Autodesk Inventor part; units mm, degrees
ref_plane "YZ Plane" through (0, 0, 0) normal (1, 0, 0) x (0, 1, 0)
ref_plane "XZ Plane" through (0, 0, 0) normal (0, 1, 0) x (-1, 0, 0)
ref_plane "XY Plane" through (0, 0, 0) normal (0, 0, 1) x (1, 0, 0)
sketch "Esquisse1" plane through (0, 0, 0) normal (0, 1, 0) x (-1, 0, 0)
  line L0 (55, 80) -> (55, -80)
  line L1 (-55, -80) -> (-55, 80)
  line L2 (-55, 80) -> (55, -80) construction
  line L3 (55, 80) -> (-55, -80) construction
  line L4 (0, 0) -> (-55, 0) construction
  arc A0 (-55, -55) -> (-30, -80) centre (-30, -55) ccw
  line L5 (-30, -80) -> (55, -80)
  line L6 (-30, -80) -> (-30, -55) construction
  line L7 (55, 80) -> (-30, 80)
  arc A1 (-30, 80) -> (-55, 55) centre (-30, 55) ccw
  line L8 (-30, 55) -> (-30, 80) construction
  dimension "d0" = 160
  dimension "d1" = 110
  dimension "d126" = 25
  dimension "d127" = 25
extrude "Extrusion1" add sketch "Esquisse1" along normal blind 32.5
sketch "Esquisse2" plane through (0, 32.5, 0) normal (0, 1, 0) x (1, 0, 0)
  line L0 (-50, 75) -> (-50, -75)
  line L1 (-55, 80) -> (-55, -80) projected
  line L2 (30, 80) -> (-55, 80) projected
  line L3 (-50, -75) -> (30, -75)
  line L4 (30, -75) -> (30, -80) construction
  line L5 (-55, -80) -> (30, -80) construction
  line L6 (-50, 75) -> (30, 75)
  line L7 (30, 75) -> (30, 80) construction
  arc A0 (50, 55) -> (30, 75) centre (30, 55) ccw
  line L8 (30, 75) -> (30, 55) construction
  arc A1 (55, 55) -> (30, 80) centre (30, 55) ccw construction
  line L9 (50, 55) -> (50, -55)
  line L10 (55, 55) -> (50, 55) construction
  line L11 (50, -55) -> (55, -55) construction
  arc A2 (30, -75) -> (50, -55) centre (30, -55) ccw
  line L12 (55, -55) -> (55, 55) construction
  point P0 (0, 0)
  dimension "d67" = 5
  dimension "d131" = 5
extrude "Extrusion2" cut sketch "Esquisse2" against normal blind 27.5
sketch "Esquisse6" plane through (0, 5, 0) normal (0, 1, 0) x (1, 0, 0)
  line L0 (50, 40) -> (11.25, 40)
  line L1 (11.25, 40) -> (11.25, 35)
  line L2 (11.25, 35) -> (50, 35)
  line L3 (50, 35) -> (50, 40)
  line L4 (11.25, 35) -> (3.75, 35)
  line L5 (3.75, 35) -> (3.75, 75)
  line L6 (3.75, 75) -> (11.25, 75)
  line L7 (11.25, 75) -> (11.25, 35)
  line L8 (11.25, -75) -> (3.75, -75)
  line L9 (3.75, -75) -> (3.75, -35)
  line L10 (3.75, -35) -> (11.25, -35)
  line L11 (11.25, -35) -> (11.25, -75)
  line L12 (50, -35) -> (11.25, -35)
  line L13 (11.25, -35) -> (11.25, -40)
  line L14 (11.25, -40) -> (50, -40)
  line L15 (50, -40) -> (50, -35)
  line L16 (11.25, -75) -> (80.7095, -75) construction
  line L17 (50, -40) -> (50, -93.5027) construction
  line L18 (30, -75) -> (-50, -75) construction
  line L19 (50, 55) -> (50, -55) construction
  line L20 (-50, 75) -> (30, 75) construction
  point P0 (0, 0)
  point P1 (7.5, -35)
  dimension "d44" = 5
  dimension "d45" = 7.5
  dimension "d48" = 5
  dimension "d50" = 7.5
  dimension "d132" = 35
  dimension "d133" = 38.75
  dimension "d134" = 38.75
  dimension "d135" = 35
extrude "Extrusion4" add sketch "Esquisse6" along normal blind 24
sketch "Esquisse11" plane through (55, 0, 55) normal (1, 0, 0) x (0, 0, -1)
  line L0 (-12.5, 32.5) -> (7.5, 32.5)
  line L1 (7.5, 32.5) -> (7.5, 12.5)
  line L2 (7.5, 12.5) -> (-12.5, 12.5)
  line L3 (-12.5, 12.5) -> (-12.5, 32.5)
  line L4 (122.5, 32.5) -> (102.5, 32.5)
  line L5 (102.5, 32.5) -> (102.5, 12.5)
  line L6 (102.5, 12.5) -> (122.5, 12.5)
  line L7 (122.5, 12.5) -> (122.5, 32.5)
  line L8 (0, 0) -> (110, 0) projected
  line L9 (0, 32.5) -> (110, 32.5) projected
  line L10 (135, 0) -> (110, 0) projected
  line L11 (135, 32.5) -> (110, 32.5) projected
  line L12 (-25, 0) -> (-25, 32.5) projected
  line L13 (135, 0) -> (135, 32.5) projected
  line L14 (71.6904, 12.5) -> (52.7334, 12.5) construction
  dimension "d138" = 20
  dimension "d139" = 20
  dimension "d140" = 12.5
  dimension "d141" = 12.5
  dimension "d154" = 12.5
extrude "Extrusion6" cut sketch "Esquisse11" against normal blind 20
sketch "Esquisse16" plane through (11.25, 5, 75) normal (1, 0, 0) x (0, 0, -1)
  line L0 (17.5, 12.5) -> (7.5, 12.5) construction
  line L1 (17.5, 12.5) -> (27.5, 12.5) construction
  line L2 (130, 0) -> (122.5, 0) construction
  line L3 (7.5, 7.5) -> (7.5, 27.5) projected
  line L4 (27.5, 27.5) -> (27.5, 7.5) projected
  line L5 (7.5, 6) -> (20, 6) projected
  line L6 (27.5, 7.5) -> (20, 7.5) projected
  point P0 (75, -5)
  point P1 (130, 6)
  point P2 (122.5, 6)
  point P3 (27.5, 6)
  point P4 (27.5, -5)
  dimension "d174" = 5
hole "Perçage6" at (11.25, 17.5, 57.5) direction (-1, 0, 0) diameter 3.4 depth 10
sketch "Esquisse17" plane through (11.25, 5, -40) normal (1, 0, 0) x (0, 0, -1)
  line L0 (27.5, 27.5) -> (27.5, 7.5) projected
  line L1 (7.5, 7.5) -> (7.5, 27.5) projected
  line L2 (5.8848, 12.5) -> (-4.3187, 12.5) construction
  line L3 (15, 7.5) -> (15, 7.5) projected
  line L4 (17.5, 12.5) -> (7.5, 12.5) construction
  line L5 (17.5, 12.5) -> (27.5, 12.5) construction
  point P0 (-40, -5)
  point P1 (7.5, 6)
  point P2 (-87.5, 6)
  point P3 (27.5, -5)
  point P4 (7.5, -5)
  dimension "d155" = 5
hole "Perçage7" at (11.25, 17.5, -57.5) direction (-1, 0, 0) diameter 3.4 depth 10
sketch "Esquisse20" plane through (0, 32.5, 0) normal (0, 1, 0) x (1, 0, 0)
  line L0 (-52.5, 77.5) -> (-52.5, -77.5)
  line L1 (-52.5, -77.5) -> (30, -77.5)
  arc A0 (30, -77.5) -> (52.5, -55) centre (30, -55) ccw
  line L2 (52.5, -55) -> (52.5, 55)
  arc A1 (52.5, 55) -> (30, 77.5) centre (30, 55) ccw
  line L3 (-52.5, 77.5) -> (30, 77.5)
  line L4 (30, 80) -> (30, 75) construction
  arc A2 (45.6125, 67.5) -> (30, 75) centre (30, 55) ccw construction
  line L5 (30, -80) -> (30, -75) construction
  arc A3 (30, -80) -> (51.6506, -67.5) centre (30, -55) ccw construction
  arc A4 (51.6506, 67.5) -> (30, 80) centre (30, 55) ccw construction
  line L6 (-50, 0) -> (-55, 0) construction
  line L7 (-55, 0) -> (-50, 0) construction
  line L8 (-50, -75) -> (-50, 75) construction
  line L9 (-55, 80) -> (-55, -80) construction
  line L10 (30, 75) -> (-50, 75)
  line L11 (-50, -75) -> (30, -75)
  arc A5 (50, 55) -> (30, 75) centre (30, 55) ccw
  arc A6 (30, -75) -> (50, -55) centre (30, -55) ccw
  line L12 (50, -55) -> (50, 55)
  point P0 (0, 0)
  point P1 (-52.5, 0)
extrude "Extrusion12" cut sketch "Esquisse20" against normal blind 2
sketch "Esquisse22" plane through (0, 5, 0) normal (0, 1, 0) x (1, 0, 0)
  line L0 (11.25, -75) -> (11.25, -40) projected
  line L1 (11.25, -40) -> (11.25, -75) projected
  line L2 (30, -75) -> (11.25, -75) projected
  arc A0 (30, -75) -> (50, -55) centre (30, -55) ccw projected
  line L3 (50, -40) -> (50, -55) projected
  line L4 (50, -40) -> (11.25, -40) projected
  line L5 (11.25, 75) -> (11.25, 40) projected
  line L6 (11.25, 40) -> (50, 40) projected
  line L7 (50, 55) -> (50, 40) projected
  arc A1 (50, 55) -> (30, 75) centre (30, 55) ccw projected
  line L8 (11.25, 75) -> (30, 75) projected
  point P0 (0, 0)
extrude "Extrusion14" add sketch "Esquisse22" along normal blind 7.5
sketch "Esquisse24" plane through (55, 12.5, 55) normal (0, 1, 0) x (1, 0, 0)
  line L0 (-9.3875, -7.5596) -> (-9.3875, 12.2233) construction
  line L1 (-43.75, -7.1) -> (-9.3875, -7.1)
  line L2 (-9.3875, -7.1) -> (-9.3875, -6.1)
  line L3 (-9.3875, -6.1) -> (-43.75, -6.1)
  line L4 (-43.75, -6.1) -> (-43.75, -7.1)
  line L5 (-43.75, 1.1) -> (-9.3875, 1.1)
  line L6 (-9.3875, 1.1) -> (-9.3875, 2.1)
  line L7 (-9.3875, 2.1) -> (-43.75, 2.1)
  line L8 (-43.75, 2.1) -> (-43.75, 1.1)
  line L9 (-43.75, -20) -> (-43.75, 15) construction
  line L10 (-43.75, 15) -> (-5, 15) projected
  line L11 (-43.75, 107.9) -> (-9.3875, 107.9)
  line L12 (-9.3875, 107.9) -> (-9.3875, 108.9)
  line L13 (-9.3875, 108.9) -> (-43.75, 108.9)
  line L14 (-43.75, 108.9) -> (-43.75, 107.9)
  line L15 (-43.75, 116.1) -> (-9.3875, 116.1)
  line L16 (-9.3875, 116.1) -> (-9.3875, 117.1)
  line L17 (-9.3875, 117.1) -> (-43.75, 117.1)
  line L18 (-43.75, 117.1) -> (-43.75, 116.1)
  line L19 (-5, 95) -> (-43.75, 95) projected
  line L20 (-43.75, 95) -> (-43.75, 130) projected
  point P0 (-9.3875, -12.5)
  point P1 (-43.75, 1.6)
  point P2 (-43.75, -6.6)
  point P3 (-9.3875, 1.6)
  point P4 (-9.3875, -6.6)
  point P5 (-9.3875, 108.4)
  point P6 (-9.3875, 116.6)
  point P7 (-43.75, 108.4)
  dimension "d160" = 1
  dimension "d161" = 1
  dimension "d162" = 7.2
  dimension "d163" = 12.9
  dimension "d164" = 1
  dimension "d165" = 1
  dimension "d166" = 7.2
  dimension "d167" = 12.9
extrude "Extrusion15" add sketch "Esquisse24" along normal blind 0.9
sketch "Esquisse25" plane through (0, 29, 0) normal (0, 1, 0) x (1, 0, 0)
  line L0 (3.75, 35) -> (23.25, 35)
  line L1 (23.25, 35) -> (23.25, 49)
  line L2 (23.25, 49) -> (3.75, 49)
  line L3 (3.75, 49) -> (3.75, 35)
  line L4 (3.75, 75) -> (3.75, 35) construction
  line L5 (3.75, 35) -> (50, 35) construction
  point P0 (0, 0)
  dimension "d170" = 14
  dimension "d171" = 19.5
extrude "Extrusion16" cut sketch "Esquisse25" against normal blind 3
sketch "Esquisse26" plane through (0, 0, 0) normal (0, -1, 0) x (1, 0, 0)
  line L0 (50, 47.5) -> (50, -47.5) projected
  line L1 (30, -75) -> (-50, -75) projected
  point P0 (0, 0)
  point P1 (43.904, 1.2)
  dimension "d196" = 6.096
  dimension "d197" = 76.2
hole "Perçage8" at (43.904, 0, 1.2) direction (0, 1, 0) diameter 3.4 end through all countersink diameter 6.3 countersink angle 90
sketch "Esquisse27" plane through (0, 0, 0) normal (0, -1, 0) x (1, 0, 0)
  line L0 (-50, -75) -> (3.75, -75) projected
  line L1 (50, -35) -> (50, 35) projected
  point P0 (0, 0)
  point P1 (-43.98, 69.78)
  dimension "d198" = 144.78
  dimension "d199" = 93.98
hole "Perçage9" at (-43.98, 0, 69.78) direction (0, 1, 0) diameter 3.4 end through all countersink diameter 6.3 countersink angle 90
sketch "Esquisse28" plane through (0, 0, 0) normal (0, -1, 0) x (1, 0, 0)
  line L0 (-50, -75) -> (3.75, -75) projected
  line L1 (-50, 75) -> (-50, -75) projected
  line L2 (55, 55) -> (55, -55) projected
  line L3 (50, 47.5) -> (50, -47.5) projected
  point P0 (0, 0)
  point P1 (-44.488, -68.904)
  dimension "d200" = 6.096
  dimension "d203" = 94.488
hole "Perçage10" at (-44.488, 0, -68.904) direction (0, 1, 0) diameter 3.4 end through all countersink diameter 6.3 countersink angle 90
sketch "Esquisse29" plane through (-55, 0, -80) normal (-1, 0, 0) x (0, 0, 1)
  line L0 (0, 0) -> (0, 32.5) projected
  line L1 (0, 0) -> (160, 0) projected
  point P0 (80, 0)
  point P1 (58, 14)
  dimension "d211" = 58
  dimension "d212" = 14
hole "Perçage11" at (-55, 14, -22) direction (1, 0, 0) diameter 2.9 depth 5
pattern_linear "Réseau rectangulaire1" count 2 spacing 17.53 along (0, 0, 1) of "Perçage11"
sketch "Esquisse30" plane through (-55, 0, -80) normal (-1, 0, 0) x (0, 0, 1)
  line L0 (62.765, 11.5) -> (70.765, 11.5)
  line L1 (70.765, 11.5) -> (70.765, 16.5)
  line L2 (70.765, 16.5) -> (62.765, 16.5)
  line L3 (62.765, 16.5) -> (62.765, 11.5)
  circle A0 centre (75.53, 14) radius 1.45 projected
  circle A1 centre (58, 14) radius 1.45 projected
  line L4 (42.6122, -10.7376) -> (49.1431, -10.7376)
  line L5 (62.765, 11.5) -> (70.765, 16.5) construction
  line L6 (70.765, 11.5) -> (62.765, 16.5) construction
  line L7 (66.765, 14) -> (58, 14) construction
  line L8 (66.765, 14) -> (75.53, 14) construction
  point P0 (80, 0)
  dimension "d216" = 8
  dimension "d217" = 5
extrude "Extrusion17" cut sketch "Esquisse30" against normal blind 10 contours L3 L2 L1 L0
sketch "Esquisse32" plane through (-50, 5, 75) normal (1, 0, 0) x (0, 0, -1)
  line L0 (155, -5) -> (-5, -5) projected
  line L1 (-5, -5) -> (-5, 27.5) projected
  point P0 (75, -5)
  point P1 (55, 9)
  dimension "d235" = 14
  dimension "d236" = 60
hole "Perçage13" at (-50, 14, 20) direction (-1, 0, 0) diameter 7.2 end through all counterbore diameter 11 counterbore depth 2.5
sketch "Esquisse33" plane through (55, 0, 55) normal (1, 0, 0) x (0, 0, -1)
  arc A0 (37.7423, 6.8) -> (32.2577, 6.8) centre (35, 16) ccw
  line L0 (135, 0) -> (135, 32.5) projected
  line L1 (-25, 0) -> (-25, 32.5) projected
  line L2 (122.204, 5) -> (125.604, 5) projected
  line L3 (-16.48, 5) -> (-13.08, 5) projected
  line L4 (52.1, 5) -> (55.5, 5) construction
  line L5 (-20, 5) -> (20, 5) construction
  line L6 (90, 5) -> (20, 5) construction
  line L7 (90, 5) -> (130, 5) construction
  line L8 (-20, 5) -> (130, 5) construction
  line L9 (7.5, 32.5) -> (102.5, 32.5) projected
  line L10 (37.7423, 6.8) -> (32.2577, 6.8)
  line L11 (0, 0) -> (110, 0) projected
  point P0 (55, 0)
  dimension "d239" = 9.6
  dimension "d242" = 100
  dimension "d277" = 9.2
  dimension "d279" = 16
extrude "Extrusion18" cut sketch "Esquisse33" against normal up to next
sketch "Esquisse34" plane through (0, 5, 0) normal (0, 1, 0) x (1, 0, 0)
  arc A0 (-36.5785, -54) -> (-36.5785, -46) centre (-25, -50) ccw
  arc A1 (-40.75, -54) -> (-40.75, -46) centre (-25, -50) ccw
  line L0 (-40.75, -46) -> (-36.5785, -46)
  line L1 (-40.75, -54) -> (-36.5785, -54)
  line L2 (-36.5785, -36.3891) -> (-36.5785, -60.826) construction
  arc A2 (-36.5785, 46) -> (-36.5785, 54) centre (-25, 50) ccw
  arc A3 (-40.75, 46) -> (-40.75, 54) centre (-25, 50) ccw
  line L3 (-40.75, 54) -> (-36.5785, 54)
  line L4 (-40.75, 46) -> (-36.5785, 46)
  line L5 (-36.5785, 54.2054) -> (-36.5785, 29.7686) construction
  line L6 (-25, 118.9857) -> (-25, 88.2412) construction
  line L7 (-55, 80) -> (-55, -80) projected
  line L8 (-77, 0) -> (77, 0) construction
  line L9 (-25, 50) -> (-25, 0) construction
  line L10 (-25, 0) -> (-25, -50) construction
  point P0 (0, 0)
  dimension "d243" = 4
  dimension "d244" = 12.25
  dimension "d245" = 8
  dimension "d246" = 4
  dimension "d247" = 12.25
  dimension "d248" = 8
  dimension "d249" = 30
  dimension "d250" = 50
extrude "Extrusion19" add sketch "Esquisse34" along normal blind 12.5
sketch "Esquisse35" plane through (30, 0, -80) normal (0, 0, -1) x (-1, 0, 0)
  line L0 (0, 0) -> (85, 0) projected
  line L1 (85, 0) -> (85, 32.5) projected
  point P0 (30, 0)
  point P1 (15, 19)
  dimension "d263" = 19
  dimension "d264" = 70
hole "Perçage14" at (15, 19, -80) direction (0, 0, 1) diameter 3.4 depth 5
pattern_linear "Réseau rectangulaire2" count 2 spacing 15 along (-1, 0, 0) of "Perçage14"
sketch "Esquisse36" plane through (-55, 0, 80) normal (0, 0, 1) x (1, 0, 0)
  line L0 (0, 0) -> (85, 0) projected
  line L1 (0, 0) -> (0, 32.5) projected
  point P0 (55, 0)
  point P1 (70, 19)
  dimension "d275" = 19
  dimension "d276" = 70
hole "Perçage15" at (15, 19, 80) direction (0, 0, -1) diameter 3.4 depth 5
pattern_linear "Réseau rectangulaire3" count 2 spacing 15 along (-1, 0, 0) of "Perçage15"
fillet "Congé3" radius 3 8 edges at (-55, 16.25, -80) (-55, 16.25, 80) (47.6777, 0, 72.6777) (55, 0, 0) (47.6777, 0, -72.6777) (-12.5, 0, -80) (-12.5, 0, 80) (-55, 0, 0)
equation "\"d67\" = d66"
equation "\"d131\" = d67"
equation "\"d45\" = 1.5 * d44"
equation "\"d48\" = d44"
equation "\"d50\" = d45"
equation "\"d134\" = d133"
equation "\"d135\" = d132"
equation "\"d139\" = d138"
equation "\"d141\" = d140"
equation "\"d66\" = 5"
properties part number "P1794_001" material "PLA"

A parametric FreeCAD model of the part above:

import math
import FreeCAD as App
import Part
import Sketcher

V = App.Vector
Q = App.Units.Quantity


def edges_at(feature, points):
    """Names of the edges that pass closest to the given points."""
    edges = feature.Shape.Edges
    near = lambda p: min(range(len(edges)), key=lambda i: edges[i].distToShape(Part.Vertex(*p))[0])
    return sorted({f"Edge{near(p) + 1}" for p in points})

doc = App.newDocument("Part")
body = doc.addObject("PartDesign::Body", "Body")

sketch1 = body.newObject("Sketcher::SketchObject", "Sketch")
sketch1.AttachmentSupport = (doc.getObject("XZ_Plane"), [""])
sketch1.MapMode = "FlatFace"
sketch1.addGeometry([
    Part.LineSegment(V(-55, -80, 0), V(-55, 80, 0)),
    Part.LineSegment(V(-55, 80, 0), V(30, 80, 0)),
    Part.ArcOfCircle(Part.Circle(V(30, 55, 0), V(0, 0, 1), 25), math.radians(0), math.radians(90)),
    Part.LineSegment(V(55, 55, 0), V(55, -55, 0)),
    Part.ArcOfCircle(Part.Circle(V(30, -55, 0), V(0, 0, 1), 25), math.radians(-90), math.radians(0)),
    Part.LineSegment(V(30, -80, 0), V(-55, -80, 0)),
], False)
sketch1.addConstraint([
    Sketcher.Constraint("Coincident", 0, 2, 1, 1),
    Sketcher.Constraint("Tangent", 1, 2, 2, 2),
    Sketcher.Constraint("Tangent", 2, 1, 3, 1),
    Sketcher.Constraint("Tangent", 3, 2, 4, 2),
    Sketcher.Constraint("Tangent", 4, 1, 5, 1),
    Sketcher.Constraint("Coincident", 5, 2, 0, 1),
    Sketcher.Constraint("Vertical", 0),
    Sketcher.Constraint("Horizontal", 1),
    Sketcher.Constraint("Vertical", 3),
    Sketcher.Constraint("Horizontal", 5),
    Sketcher.Constraint("Equal", 2, 4),
    Sketcher.Constraint("Radius", 2, Q("25 mm")),
    Sketcher.Constraint("DistanceY", 0, 1, 0, 2, Q("160 mm")),
    Sketcher.Constraint("DistanceX", 0, 2, 2, 1, Q("110 mm")),
    Sketcher.Constraint("DistanceX", -1, 1, 2, 3, Q("30 mm")),
    Sketcher.Constraint("DistanceY", -1, 1, 2, 3, Q("55 mm")),
])
pad1 = body.newObject("PartDesign::Pad", "Pad")
pad1.Profile = sketch1
pad1.Length = 32.5
pad1.Reversed = True

sketch2 = body.newObject("Sketcher::SketchObject", "Sketch001")
sketch2.AttachmentSupport = (doc.getObject("XZ_Plane"), [""])
sketch2.MapMode = "FlatFace"
sketch2.AttachmentOffset = App.Placement(V(0, 0, -32.5), App.Rotation())
sketch2.addGeometry([
    Part.LineSegment(V(30, -75, 0), V(-50, -75, 0)),
    Part.LineSegment(V(-50, -75, 0), V(-50, 75, 0)),
    Part.LineSegment(V(-50, 75, 0), V(30, 75, 0)),
    Part.ArcOfCircle(Part.Circle(V(30, 55, 0), V(0, 0, 1), 20), math.radians(0), math.radians(90)),
    Part.LineSegment(V(50, 55, 0), V(50, -55, 0)),
    Part.ArcOfCircle(Part.Circle(V(30, -55, 0), V(0, 0, 1), 20), math.radians(-90), math.radians(0)),
], False)
sketch2.addConstraint([
    Sketcher.Constraint("Coincident", 0, 2, 1, 1),
    Sketcher.Constraint("Coincident", 1, 2, 2, 1),
    Sketcher.Constraint("Tangent", 2, 2, 3, 2),
    Sketcher.Constraint("Tangent", 3, 1, 4, 1),
    Sketcher.Constraint("Tangent", 4, 2, 5, 2),
    Sketcher.Constraint("Tangent", 5, 1, 0, 1),
    Sketcher.Constraint("Horizontal", 0),
    Sketcher.Constraint("Vertical", 1),
    Sketcher.Constraint("Horizontal", 2),
    Sketcher.Constraint("Vertical", 4),
    Sketcher.Constraint("Equal", 3, 5),
    Sketcher.Constraint("Radius", 3, Q("20 mm")),
    Sketcher.Constraint("DistanceX", 0, 2, 0, 1, Q("80 mm")),
    Sketcher.Constraint("DistanceY", 1, 1, 1, 2, Q("150 mm")),
    Sketcher.Constraint("DistanceX", -1, 1, 3, 3, Q("30 mm")),
    Sketcher.Constraint("DistanceY", -1, 1, 3, 3, Q("55 mm")),
])
pocket1 = body.newObject("PartDesign::Pocket", "Pocket")
pocket1.Profile = sketch2
pocket1.Length = 27.5
pocket1.Reversed = True

sketch3 = body.newObject("Sketcher::SketchObject", "Sketch002")
sketch3.AttachmentSupport = (doc.getObject("XZ_Plane"), [""])
sketch3.MapMode = "FlatFace"
sketch3.AttachmentOffset = App.Placement(V(0, 0, -5), App.Rotation())
sketch3.addGeometry([
    Part.LineSegment(V(50, -35, 0), V(50, -40, 0)),
    Part.LineSegment(V(50, -40, 0), V(11, -40, 0)),
    Part.LineSegment(V(11, -40, 0), V(11, -75, 0)),
    Part.LineSegment(V(11, -75, 0), V(4, -75, 0)),
    Part.LineSegment(V(4, -75, 0), V(4, -35, 0)),
    Part.LineSegment(V(4, -35, 0), V(50, -35, 0)),
    Part.LineSegment(V(4, 75, 0), V(11, 75, 0)),
    Part.LineSegment(V(11, 75, 0), V(11, 40, 0)),
    Part.LineSegment(V(11, 40, 0), V(50, 40, 0)),
    Part.LineSegment(V(50, 40, 0), V(50, 35, 0)),
    Part.LineSegment(V(50, 35, 0), V(4, 35, 0)),
    Part.LineSegment(V(4, 35, 0), V(4, 75, 0)),
], False)
sketch3.addConstraint([
    Sketcher.Constraint("Coincident", 0, 2, 1, 1),
    Sketcher.Constraint("Coincident", 1, 2, 2, 1),
    Sketcher.Constraint("Coincident", 2, 2, 3, 1),
    Sketcher.Constraint("Coincident", 3, 2, 4, 1),
    Sketcher.Constraint("Coincident", 4, 2, 5, 1),
    Sketcher.Constraint("Coincident", 5, 2, 0, 1),
    Sketcher.Constraint("Coincident", 6, 2, 7, 1),
    Sketcher.Constraint("Coincident", 7, 2, 8, 1),
    Sketcher.Constraint("Coincident", 8, 2, 9, 1),
    Sketcher.Constraint("Coincident", 9, 2, 10, 1),
    Sketcher.Constraint("Coincident", 10, 2, 11, 1),
    Sketcher.Constraint("Coincident", 11, 2, 6, 1),
    Sketcher.Constraint("Vertical", 0),
    Sketcher.Constraint("Horizontal", 1),
    Sketcher.Constraint("Vertical", 2),
    Sketcher.Constraint("Horizontal", 3),
    Sketcher.Constraint("Vertical", 4),
    Sketcher.Constraint("Horizontal", 5),
    Sketcher.Constraint("Horizontal", 6),
    Sketcher.Constraint("Vertical", 7),
    Sketcher.Constraint("Horizontal", 8),
    Sketcher.Constraint("Vertical", 9),
    Sketcher.Constraint("Horizontal", 10),
    Sketcher.Constraint("Vertical", 11),
    Sketcher.Constraint("Symmetric", 2, 2, 6, 2, -1),
    Sketcher.Constraint("Symmetric", 0, 2, 8, 2, -1),
    Sketcher.Constraint("Symmetric", 4, 2, 10, 2, -1),
    Sketcher.Constraint("DistanceY", 0, 2, 0, 1, Q("5 mm")),
    Sketcher.Constraint("DistanceY", 2, 2, 2, 1, Q("35 mm")),
    Sketcher.Constraint("DistanceX", 3, 2, 3, 1, Q("7.5 mm")),
    Sketcher.Constraint("DistanceY", 4, 2, -1, 1, Q("35 mm")),
    Sketcher.Constraint("DistanceX", 1, 2, 1, 1, Q("38.75 mm")),
    Sketcher.Constraint("DistanceX", -1, 1, 0, 2, Q("50 mm")),
])
pad2 = body.newObject("PartDesign::Pad", "Pad001")
pad2.Profile = sketch3
pad2.Length = 24
pad2.Reversed = True

sketch4 = body.newObject("Sketcher::SketchObject", "Sketch003")
sketch4.AttachmentSupport = (doc.getObject("YZ_Plane"), [""])
sketch4.MapMode = "FlatFace"
sketch4.AttachmentOffset = App.Placement(V(0, 0, 55), App.Rotation())
sketch4.addGeometry([
    Part.LineSegment(V(32, -68, 0), V(32, -48, 0)),
    Part.LineSegment(V(32, -48, 0), V(12, -48, 0)),
    Part.LineSegment(V(12, -48, 0), V(12, -68, 0)),
    Part.LineSegment(V(12, -68, 0), V(32, -68, 0)),
    Part.LineSegment(V(32, 48, 0), V(32, 68, 0)),
    Part.LineSegment(V(32, 68, 0), V(12, 68, 0)),
    Part.LineSegment(V(12, 68, 0), V(12, 48, 0)),
    Part.LineSegment(V(12, 48, 0), V(32, 48, 0)),
], False)
sketch4.addConstraint([
    Sketcher.Constraint("Coincident", 0, 2, 1, 1),
    Sketcher.Constraint("Coincident", 1, 2, 2, 1),
    Sketcher.Constraint("Coincident", 2, 2, 3, 1),
    Sketcher.Constraint("Coincident", 3, 2, 0, 1),
    Sketcher.Constraint("Coincident", 4, 2, 5, 1),
    Sketcher.Constraint("Coincident", 5, 2, 6, 1),
    Sketcher.Constraint("Coincident", 6, 2, 7, 1),
    Sketcher.Constraint("Coincident", 7, 2, 4, 1),
    Sketcher.Constraint("Vertical", 0),
    Sketcher.Constraint("Horizontal", 1),
    Sketcher.Constraint("Vertical", 2),
    Sketcher.Constraint("Horizontal", 3),
    Sketcher.Constraint("Vertical", 4),
    Sketcher.Constraint("Horizontal", 5),
    Sketcher.Constraint("Vertical", 6),
    Sketcher.Constraint("Horizontal", 7),
    Sketcher.Constraint("Symmetric", 3, 2, 4, 2, -1),
    Sketcher.Constraint("Symmetric", 1, 2, 6, 2, -1),
    Sketcher.Constraint("Equal", 7, 0),
    Sketcher.Constraint("DistanceX", 1, 2, 1, 1, Q("20 mm")),
    Sketcher.Constraint("DistanceX", -1, 1, 1, 2, Q("12.5 mm")),
    Sketcher.Constraint("DistanceY", 0, 2, 4, 2, Q("115 mm")),
])
pocket2 = body.newObject("PartDesign::Pocket", "Pocket001")
pocket2.Profile = sketch4
pocket2.Length = 20

sketch5 = body.newObject("Sketcher::SketchObject", "Sketch004")
sketch5.AttachmentSupport = (doc.getObject("YZ_Plane"), [""])
sketch5.MapMode = "FlatFace"
sketch5.AttachmentOffset = App.Placement(V(0, 0, 11.25), App.Rotation())
sketch5.addGeometry(Part.Circle(V(17.5, 57.5, 0), V(0, 0, 1), 1.7), False)
sketch5.addConstraint([
    Sketcher.Constraint("Diameter", 0, Q("3.4 mm")),
    Sketcher.Constraint("DistanceX", -1, 1, 0, 3, Q("17.5 mm")),
    Sketcher.Constraint("DistanceY", -1, 1, 0, 3, Q("57.5 mm")),
])
doc.recompute()
hole = body.newObject("PartDesign::Hole", "Hole")
hole.Profile = sketch5
hole.ThreadType = "None"
hole.Diameter = 3.4
hole.DepthType = "Dimension"
hole.Depth = 10
hole.DrillPoint = "Flat"

sketch6 = body.newObject("Sketcher::SketchObject", "Sketch005")
sketch6.AttachmentSupport = (doc.getObject("YZ_Plane"), [""])
sketch6.MapMode = "FlatFace"
sketch6.AttachmentOffset = App.Placement(V(0, 0, 11.25), App.Rotation())
sketch6.addGeometry(Part.Circle(V(17.5, -57.5, 0), V(0, 0, 1), 1.7), False)
sketch6.addConstraint([
    Sketcher.Constraint("Diameter", 0, Q("3.4 mm")),
    Sketcher.Constraint("DistanceX", -1, 1, 0, 3, Q("17.5 mm")),
    Sketcher.Constraint("DistanceY", 0, 3, -1, 1, Q("57.5 mm")),
])
doc.recompute()
hole2 = body.newObject("PartDesign::Hole", "Hole001")
hole2.Profile = sketch6
hole2.ThreadType = "None"
hole2.Diameter = 3.4
hole2.DepthType = "Dimension"
hole2.Depth = 10
hole2.DrillPoint = "Flat"

sketch7 = body.newObject("Sketcher::SketchObject", "Sketch006")
sketch7.AttachmentSupport = (doc.getObject("XZ_Plane"), [""])
sketch7.MapMode = "FlatFace"
sketch7.AttachmentOffset = App.Placement(V(0, 0, -32.5), App.Rotation())
sketch7.addGeometry([
    Part.LineSegment(V(30, -78, 0), V(-52, -78, 0)),
    Part.LineSegment(V(-52, -78, 0), V(-52, 78, 0)),
    Part.LineSegment(V(-52, 78, 0), V(30, 78, 0)),
    Part.ArcOfCircle(Part.Circle(V(30, 55, 0), V(0, 0, 1), 22), math.radians(0), math.radians(90)),
    Part.LineSegment(V(52, 55, 0), V(52, -55, 0)),
    Part.ArcOfCircle(Part.Circle(V(30, -55, 0), V(0, 0, 1), 22), math.radians(-90), math.radians(0)),
], False)
sketch7.addConstraint([
    Sketcher.Constraint("Coincident", 0, 2, 1, 1),
    Sketcher.Constraint("Coincident", 1, 2, 2, 1),
    Sketcher.Constraint("Tangent", 2, 2, 3, 2),
    Sketcher.Constraint("Tangent", 3, 1, 4, 1),
    Sketcher.Constraint("Tangent", 4, 2, 5, 2),
    Sketcher.Constraint("Tangent", 5, 1, 0, 1),
    Sketcher.Constraint("Horizontal", 0),
    Sketcher.Constraint("Vertical", 1),
    Sketcher.Constraint("Horizontal", 2),
    Sketcher.Constraint("Vertical", 4),
    Sketcher.Constraint("Equal", 3, 5),
    Sketcher.Constraint("Radius", 3, Q("22.5 mm")),
    Sketcher.Constraint("DistanceY", 1, 1, 1, 2, Q("155 mm")),
    Sketcher.Constraint("DistanceX", 0, 2, 0, 1, Q("82.5 mm")),
    Sketcher.Constraint("DistanceX", -1, 1, 3, 3, Q("30 mm")),
    Sketcher.Constraint("DistanceY", -1, 1, 3, 3, Q("55 mm")),
])
pocket3 = body.newObject("PartDesign::Pocket", "Pocket002")
pocket3.Profile = sketch7
pocket3.Length = 2
pocket3.Reversed = True

sketch8 = body.newObject("Sketcher::SketchObject", "Sketch007")
sketch8.AttachmentSupport = (doc.getObject("XZ_Plane"), [""])
sketch8.MapMode = "FlatFace"
sketch8.AttachmentOffset = App.Placement(V(0, 0, -5), App.Rotation())
sketch8.addGeometry([
    Part.LineSegment(V(11, 40, 0), V(11, 75, 0)),
    Part.LineSegment(V(11, 75, 0), V(30, 75, 0)),
    Part.ArcOfCircle(Part.Circle(V(30, 55, 0), V(0, 0, 1), 20), math.radians(0), math.radians(90)),
    Part.LineSegment(V(50, 55, 0), V(50, 40, 0)),
    Part.LineSegment(V(50, 40, 0), V(11, 40, 0)),
    Part.LineSegment(V(30, -75, 0), V(11, -75, 0)),
    Part.LineSegment(V(11, -75, 0), V(11, -40, 0)),
    Part.LineSegment(V(11, -40, 0), V(50, -40, 0)),
    Part.LineSegment(V(50, -40, 0), V(50, -55, 0)),
    Part.ArcOfCircle(Part.Circle(V(30, -55, 0), V(0, 0, 1), 20), math.radians(-90), math.radians(0)),
], False)
sketch8.addConstraint([
    Sketcher.Constraint("Coincident", 0, 2, 1, 1),
    Sketcher.Constraint("Tangent", 1, 2, 2, 2),
    Sketcher.Constraint("Tangent", 2, 1, 3, 1),
    Sketcher.Constraint("Coincident", 3, 2, 4, 1),
    Sketcher.Constraint("Coincident", 4, 2, 0, 1),
    Sketcher.Constraint("Coincident", 5, 2, 6, 1),
    Sketcher.Constraint("Coincident", 6, 2, 7, 1),
    Sketcher.Constraint("Coincident", 7, 2, 8, 1),
    Sketcher.Constraint("Tangent", 8, 2, 9, 2),
    Sketcher.Constraint("Tangent", 9, 1, 5, 1),
    Sketcher.Constraint("Vertical", 0),
    Sketcher.Constraint("Horizontal", 1),
    Sketcher.Constraint("Vertical", 3),
    Sketcher.Constraint("Horizontal", 4),
    Sketcher.Constraint("Horizontal", 5),
    Sketcher.Constraint("Vertical", 6),
    Sketcher.Constraint("Horizontal", 7),
    Sketcher.Constraint("Vertical", 8),
    Sketcher.Constraint("Equal", 2, 9),
    Sketcher.Constraint("Symmetric", 2, 3, 9, 3, -1),
    Sketcher.Constraint("Symmetric", 4, 2, 6, 2, -1),
    Sketcher.Constraint("Radius", 2, Q("20 mm")),
    Sketcher.Constraint("DistanceY", 0, 1, 0, 2, Q("35 mm")),
    Sketcher.Constraint("DistanceX", -1, 1, 2, 3, Q("30 mm")),
    Sketcher.Constraint("DistanceY", -1, 1, 2, 3, Q("55 mm")),
    Sketcher.Constraint("DistanceX", 1, 1, 1, 2, Q("18.75 mm")),
])
pad3 = body.newObject("PartDesign::Pad", "Pad002")
pad3.Profile = sketch8
pad3.Length = 7.5
pad3.Reversed = True

sketch9 = body.newObject("Sketcher::SketchObject", "Sketch008")
sketch9.AttachmentSupport = (doc.getObject("XZ_Plane"), [""])
sketch9.MapMode = "FlatFace"
sketch9.AttachmentOffset = App.Placement(V(0, 0, -12.5), App.Rotation())
sketch9.addGeometry([
    Part.LineSegment(V(11.2, 61.1, 0), V(11.2, 62.1, 0)),
    Part.LineSegment(V(11.2, 62.1, 0), V(45.6, 62.1, 0)),
    Part.LineSegment(V(45.6, 62.1, 0), V(45.6, 61.1, 0)),
    Part.LineSegment(V(45.6, 61.1, 0), V(11.2, 61.1, 0)),
    Part.LineSegment(V(11.2, 52.9, 0), V(11.2, 53.9, 0)),
    Part.LineSegment(V(11.2, 53.9, 0), V(45.6, 53.9, 0)),
    Part.LineSegment(V(45.6, 53.9, 0), V(45.6, 52.9, 0)),
    Part.LineSegment(V(45.6, 52.9, 0), V(11.2, 52.9, 0)),
    Part.LineSegment(V(11.2, -53.9, 0), V(11.2, -52.9, 0)),
    Part.LineSegment(V(11.2, -52.9, 0), V(45.6, -52.9, 0)),
    Part.LineSegment(V(45.6, -52.9, 0), V(45.6, -53.9, 0)),
    Part.LineSegment(V(45.6, -53.9, 0), V(11.2, -53.9, 0)),
    Part.LineSegment(V(11.2, -62.1, 0), V(11.2, -61.1, 0)),
    Part.LineSegment(V(11.2, -61.1, 0), V(45.6, -61.1, 0)),
    Part.LineSegment(V(45.6, -61.1, 0), V(45.6, -62.1, 0)),
    Part.LineSegment(V(45.6, -62.1, 0), V(11.2, -62.1, 0)),
], False)
sketch9.addConstraint([
    Sketcher.Constraint("Coincident", 0, 2, 1, 1),
    Sketcher.Constraint("Coincident", 1, 2, 2, 1),
    Sketcher.Constraint("Coincident", 2, 2, 3, 1),
    Sketcher.Constraint("Coincident", 3, 2, 0, 1),
    Sketcher.Constraint("Coincident", 4, 2, 5, 1),
    Sketcher.Constraint("Coincident", 5, 2, 6, 1),
    Sketcher.Constraint("Coincident", 6, 2, 7, 1),
    Sketcher.Constraint("Coincident", 7, 2, 4, 1),
    Sketcher.Constraint("Coincident", 8, 2, 9, 1),
    Sketcher.Constraint("Coincident", 9, 2, 10, 1),
    Sketcher.Constraint("Coincident", 10, 2, 11, 1),
    Sketcher.Constraint("Coincident", 11, 2, 8, 1),
    Sketcher.Constraint("Coincident", 12, 2, 13, 1),
    Sketcher.Constraint("Coincident", 13, 2, 14, 1),
    Sketcher.Constraint("Coincident", 14, 2, 15, 1),
    Sketcher.Constraint("Coincident", 15, 2, 12, 1),
    Sketcher.Constraint("Vertical", 0),
    Sketcher.Constraint("Horizontal", 1),
    Sketcher.Constraint("Vertical", 2),
    Sketcher.Constraint("Horizontal", 3),
    Sketcher.Constraint("Vertical", 4),
    Sketcher.Constraint("Horizontal", 5),
    Sketcher.Constraint("Vertical", 6),
    Sketcher.Constraint("Horizontal", 7),
    Sketcher.Constraint("Vertical", 8),
    Sketcher.Constraint("Horizontal", 9),
    Sketcher.Constraint("Vertical", 10),
    Sketcher.Constraint("Horizontal", 11),
    Sketcher.Constraint("Vertical", 12),
    Sketcher.Constraint("Horizontal", 13),
    Sketcher.Constraint("Vertical", 14),
    Sketcher.Constraint("Horizontal", 15),
    Sketcher.Constraint("Symmetric", 7, 2, 8, 2, -1),
    Sketcher.Constraint("Symmetric", 5, 2, 10, 2, -1),
    Sketcher.Constraint("Symmetric", 3, 2, 12, 2, -1),
    Sketcher.Constraint("Symmetric", 1, 2, 14, 2, -1),
    Sketcher.Constraint("Vertical", 3, 2, 4, 2),
    Sketcher.Constraint("Vertical", 2, 2, 5, 2),
    Sketcher.Constraint("Equal", 2, 4),
    Sketcher.Constraint("DistanceY", 0, 1, 0, 2, Q("1 mm")),
    Sketcher.Constraint("DistanceY", 4, 2, 3, 2, Q("7.2 mm")),
    Sketcher.Constraint("DistanceY", 8, 2, 3, 2, Q("114 mm")),
    Sketcher.Constraint("DistanceX", -1, 1, 0, 2, Q("11.25 mm")),
    Sketcher.Constraint("DistanceX", 1, 1, 1, 2, Q("34.3625 mm")),
])
pad4 = body.newObject("PartDesign::Pad", "Pad003")
pad4.Profile = sketch9
pad4.Length = 0.9
pad4.Reversed = True

sketch10 = body.newObject("Sketcher::SketchObject", "Sketch009")
sketch10.AttachmentSupport = (doc.getObject("XZ_Plane"), [""])
sketch10.MapMode = "FlatFace"
sketch10.AttachmentOffset = App.Placement(V(0, 0, -29), App.Rotation())
sketch10.addGeometry([
    Part.LineSegment(V(4, -49, 0), V(4, -35, 0)),
    Part.LineSegment(V(4, -35, 0), V(23, -35, 0)),
    Part.LineSegment(V(23, -35, 0), V(23, -49, 0)),
    Part.LineSegment(V(23, -49, 0), V(4, -49, 0)),
], False)
sketch10.addConstraint([
    Sketcher.Constraint("Coincident", 0, 2, 1, 1),
    Sketcher.Constraint("Coincident", 1, 2, 2, 1),
    Sketcher.Constraint("Coincident", 2, 2, 3, 1),
    Sketcher.Constraint("Coincident", 3, 2, 0, 1),
    Sketcher.Constraint("Vertical", 0),
    Sketcher.Constraint("Horizontal", 1),
    Sketcher.Constraint("Vertical", 2),
    Sketcher.Constraint("Horizontal", 3),
    Sketcher.Constraint("DistanceY", 0, 1, 0, 2, Q("14 mm")),
    Sketcher.Constraint("DistanceX", 1, 1, 1, 2, Q("19.5 mm")),
    Sketcher.Constraint("DistanceY", 0, 2, -1, 1, Q("35 mm")),
    Sketcher.Constraint("DistanceX", -1, 1, 0, 2, Q("3.75 mm")),
])
pocket4 = body.newObject("PartDesign::Pocket", "Pocket003")
pocket4.Profile = sketch10
pocket4.Length = 3
pocket4.Reversed = True

sketch11 = body.newObject("Sketcher::SketchObject", "Sketch010")
sketch11.AttachmentSupport = (doc.getObject("XZ_Plane"), [""])
sketch11.MapMode = "FlatFace"
sketch11.addGeometry(Part.Circle(V(43.9, 1.2, 0), V(0, 0, 1), 1.7), False)
sketch11.addConstraint([
    Sketcher.Constraint("Diameter", 0, Q("3.4 mm")),
    Sketcher.Constraint("DistanceY", -1, 1, 0, 3, Q("1.2 mm")),
    Sketcher.Constraint("DistanceX", -1, 1, 0, 3, Q("43.904 mm")),
])
doc.recompute()
hole3 = body.newObject("PartDesign::Hole", "Hole002")
hole3.Profile = sketch11
hole3.ThreadType = "None"
hole3.Diameter = 3.4
hole3.DepthType = "ThroughAll"
hole3.HoleCutType = "Countersink"
hole3.HoleCutDiameter = 6.3
hole3.HoleCutCountersinkAngle = 90

sketch12 = body.newObject("Sketcher::SketchObject", "Sketch011")
sketch12.AttachmentSupport = (doc.getObject("XZ_Plane"), [""])
sketch12.MapMode = "FlatFace"
sketch12.addGeometry(Part.Circle(V(-44, 69.8, 0), V(0, 0, 1), 1.7), False)
sketch12.addConstraint([
    Sketcher.Constraint("Diameter", 0, Q("3.4 mm")),
    Sketcher.Constraint("DistanceX", 0, 3, -1, 1, Q("43.98 mm")),
    Sketcher.Constraint("DistanceY", -1, 1, 0, 3, Q("69.78 mm")),
])
doc.recompute()
hole4 = body.newObject("PartDesign::Hole", "Hole003")
hole4.Profile = sketch12
hole4.ThreadType = "None"
hole4.Diameter = 3.4
hole4.DepthType = "ThroughAll"
hole4.HoleCutType = "Countersink"
hole4.HoleCutDiameter = 6.3
hole4.HoleCutCountersinkAngle = 90

sketch13 = body.newObject("Sketcher::SketchObject", "Sketch012")
sketch13.AttachmentSupport = (doc.getObject("XZ_Plane"), [""])
sketch13.MapMode = "FlatFace"
sketch13.addGeometry(Part.Circle(V(-44.5, -68.9, 0), V(0, 0, 1), 1.7), False)
sketch13.addConstraint([
    Sketcher.Constraint("Diameter", 0, Q("3.4 mm")),
    Sketcher.Constraint("DistanceX", 0, 3, -1, 1, Q("44.488 mm")),
    Sketcher.Constraint("DistanceY", 0, 3, -1, 1, Q("68.904 mm")),
])
doc.recompute()
hole5 = body.newObject("PartDesign::Hole", "Hole004")
hole5.Profile = sketch13
hole5.ThreadType = "None"
hole5.Diameter = 3.4
hole5.DepthType = "ThroughAll"
hole5.HoleCutType = "Countersink"
hole5.HoleCutDiameter = 6.3
hole5.HoleCutCountersinkAngle = 90

sketch14 = body.newObject("Sketcher::SketchObject", "Sketch013")
sketch14.AttachmentSupport = (doc.getObject("YZ_Plane"), [""])
sketch14.MapMode = "FlatFace"
sketch14.AttachmentOffset = App.Placement(V(0, 0, -55), App.Rotation())
sketch14.addGeometry(Part.Circle(V(14, -22, 0), V(0, 0, 1), 1.4), False)
sketch14.addConstraint([
    Sketcher.Constraint("Diameter", 0, Q("2.9 mm")),
    Sketcher.Constraint("DistanceX", -1, 1, 0, 3, Q("14 mm")),
    Sketcher.Constraint("DistanceY", 0, 3, -1, 1, Q("22 mm")),
])
doc.recompute()
hole6 = body.newObject("PartDesign::Hole", "Hole005")
hole6.Profile = sketch14
hole6.ThreadType = "None"
hole6.Diameter = 2.9
hole6.DepthType = "Dimension"
hole6.Depth = 5
hole6.DrillPoint = "Flat"
hole6.Reversed = True
doc.recompute()

linearpattern = body.newObject("PartDesign::LinearPattern", "LinearPattern")
linearpattern.Originals = [hole6]
linearpattern.Direction = (doc.getObject("Z_Axis"), [""])
linearpattern.Mode = "offset"
linearpattern.Offset = 17.53
linearpattern.Occurrences = 2
body.Tip = linearpattern

sketch15 = body.newObject("Sketcher::SketchObject", "Sketch014")
sketch15.AttachmentSupport = (doc.getObject("YZ_Plane"), [""])
sketch15.MapMode = "FlatFace"
sketch15.AttachmentOffset = App.Placement(V(0, 0, -55), App.Rotation())
sketch15.addGeometry([
    Part.LineSegment(V(16, -17, 0), V(12, -17, 0)),
    Part.LineSegment(V(12, -17, 0), V(12, -9, 0)),
    Part.LineSegment(V(12, -9, 0), V(16, -9, 0)),
    Part.LineSegment(V(16, -9, 0), V(16, -17, 0)),
], False)
sketch15.addConstraint([
    Sketcher.Constraint("Coincident", 0, 2, 1, 1),
    Sketcher.Constraint("Coincident", 1, 2, 2, 1),
    Sketcher.Constraint("Coincident", 2, 2, 3, 1),
    Sketcher.Constraint("Coincident", 3, 2, 0, 1),
    Sketcher.Constraint("Horizontal", 0),
    Sketcher.Constraint("Vertical", 1),
    Sketcher.Constraint("Horizontal", 2),
    Sketcher.Constraint("Vertical", 3),
    Sketcher.Constraint("DistanceX", 0, 2, 0, 1, Q("5 mm")),
    Sketcher.Constraint("DistanceY", 1, 1, 1, 2, Q("8 mm")),
    Sketcher.Constraint("DistanceX", -1, 1, 0, 2, Q("11.5 mm")),
    Sketcher.Constraint("DistanceY", 0, 2, -1, 1, Q("17.235 mm")),
])
pocket5 = body.newObject("PartDesign::Pocket", "Pocket004")
pocket5.Profile = sketch15
pocket5.Length = 10
pocket5.Reversed = True

sketch16 = body.newObject("Sketcher::SketchObject", "Sketch015")
sketch16.AttachmentSupport = (doc.getObject("YZ_Plane"), [""])
sketch16.MapMode = "FlatFace"
sketch16.AttachmentOffset = App.Placement(V(0, 0, -50), App.Rotation())
sketch16.addGeometry(Part.Circle(V(14, 20, 0), V(0, 0, 1), 3.6), False)
sketch16.addConstraint([
    Sketcher.Constraint("Diameter", 0, Q("7.2 mm")),
    Sketcher.Constraint("DistanceX", -1, 1, 0, 3, Q("14 mm")),
    Sketcher.Constraint("DistanceY", -1, 1, 0, 3, Q("20 mm")),
])
doc.recompute()
hole7 = body.newObject("PartDesign::Hole", "Hole006")
hole7.Profile = sketch16
hole7.ThreadType = "None"
hole7.Diameter = 7.2
hole7.DepthType = "ThroughAll"
hole7.HoleCutType = "Counterbore"
hole7.HoleCutDiameter = 11
hole7.HoleCutDepth = 2.5

sketch17 = body.newObject("Sketcher::SketchObject", "Sketch016")
sketch17.AttachmentSupport = (doc.getObject("YZ_Plane"), [""])
sketch17.MapMode = "FlatFace"
sketch17.AttachmentOffset = App.Placement(V(0, 0, 55), App.Rotation())
sketch17.addGeometry([
    Part.LineSegment(V(7, 23, 0), V(7, 17, 0)),
    Part.ArcOfCircle(Part.Circle(V(16, 20, 0), V(0, 0, 1), 10), math.radians(-163), math.radians(163)),
], False)
sketch17.addConstraint([
    Sketcher.Constraint("Coincident", 0, 1, 1, 2),
    Sketcher.Constraint("Coincident", 1, 1, 0, 2),
    Sketcher.Constraint("Vertical", 0),
    Sketcher.Constraint("Radius", 1, Q("9.6 mm")),
    Sketcher.Constraint("DistanceX", -1, 1, 1, 3, Q("16 mm")),
    Sketcher.Constraint("DistanceX", 0, 1, 1, 3, Q("9.2 mm")),
    Sketcher.Constraint("DistanceY", -1, 1, 1, 3, Q("20 mm")),
])
pocket6 = body.newObject("PartDesign::Pocket", "Pocket005")
pocket6.Profile = sketch17
pocket6.Type = "UpToFirst"

sketch18 = body.newObject("Sketcher::SketchObject", "Sketch017")
sketch18.AttachmentSupport = (doc.getObject("XZ_Plane"), [""])
sketch18.MapMode = "FlatFace"
sketch18.AttachmentOffset = App.Placement(V(0, 0, -5), App.Rotation())
sketch18.addGeometry([
    Part.ArcOfCircle(Part.Circle(V(-25, 50, 0), V(0, 0, 1), 12.2), math.radians(-161), math.radians(161)),
    Part.LineSegment(V(-36.6, 54, 0), V(-40.8, 54, 0)),
    Part.ArcOfCircle(Part.Circle(V(-25, 50, 0), V(0, 0, 1), 16.2), math.radians(-166), math.radians(166)),
    Part.LineSegment(V(-40.8, 46, 0), V(-36.6, 46, 0)),
    Part.ArcOfCircle(Part.Circle(V(-25, -50, 0), V(0, 0, 1), 12.2), math.radians(-161), math.radians(161)),
    Part.LineSegment(V(-36.6, -46, 0), V(-40.8, -46, 0)),
    Part.ArcOfCircle(Part.Circle(V(-25, -50, 0), V(0, 0, 1), 16.2), math.radians(-166), math.radians(166)),
    Part.LineSegment(V(-40.8, -54, 0), V(-36.6, -54, 0)),
], False)
sketch18.addConstraint([
    Sketcher.Constraint("Coincident", 0, 2, 1, 1),
    Sketcher.Constraint("Coincident", 1, 2, 2, 2),
    Sketcher.Constraint("Coincident", 2, 1, 3, 1),
    Sketcher.Constraint("Coincident", 3, 2, 0, 1),
    Sketcher.Constraint("Coincident", 4, 2, 5, 1),
    Sketcher.Constraint("Coincident", 5, 2, 6, 2),
    Sketcher.Constraint("Coincident", 6, 1, 7, 1),
    Sketcher.Constraint("Coincident", 7, 2, 4, 1),
    Sketcher.Constraint("Horizontal", 1),
    Sketcher.Constraint("Horizontal", 3),
    Sketcher.Constraint("Horizontal", 5),
    Sketcher.Constraint("Horizontal", 7),
    Sketcher.Constraint("Coincident", 2, 3, 0, 3),
    Sketcher.Constraint("Coincident", 6, 3, 4, 3),
    Sketcher.Constraint("Equal", 0, 4),
    Sketcher.Constraint("Equal", 2, 6),
    Sketcher.Constraint("Symmetric", 0, 3, 4, 3, -1),
    Sketcher.Constraint("Vertical", 1, 2, 2, 1),
    Sketcher.Constraint("Vertical", 3, 2, 4, 2),
    Sketcher.Constraint("Vertical", 5, 2, 6, 1),
    Sketcher.Constraint("Radius", 0, Q("12.25 mm")),
    Sketcher.Constraint("DistanceY", -1, 1, 0, 3, Q("50 mm")),
    Sketcher.Constraint("DistanceY", 0, 3, 0, 2, Q("4 mm")),
    Sketcher.Constraint("Radius", 2, Q("16.25 mm")),
    Sketcher.Constraint("DistanceX", 0, 3, -1, 1, Q("25 mm")),
])
pad5 = body.newObject("PartDesign::Pad", "Pad004")
pad5.Profile = sketch18
pad5.Length = 12.5
pad5.Reversed = True

sketch19 = body.newObject("Sketcher::SketchObject", "Sketch018")
sketch19.AttachmentSupport = (doc.getObject("XY_Plane"), [""])
sketch19.MapMode = "FlatFace"
sketch19.AttachmentOffset = App.Placement(V(0, 0, -80), App.Rotation())
sketch19.addGeometry(Part.Circle(V(15, 19, 0), V(0, 0, 1), 1.7), False)
sketch19.addConstraint([
    Sketcher.Constraint("Diameter", 0, Q("3.4 mm")),
    Sketcher.Constraint("DistanceX", -1, 1, 0, 3, Q("15 mm")),
    Sketcher.Constraint("DistanceY", -1, 1, 0, 3, Q("19 mm")),
])
doc.recompute()
hole8 = body.newObject("PartDesign::Hole", "Hole007")
hole8.Profile = sketch19
hole8.ThreadType = "None"
hole8.Diameter = 3.4
hole8.DepthType = "Dimension"
hole8.Depth = 5
hole8.DrillPoint = "Flat"
hole8.Reversed = True
doc.recompute()

linearpattern2 = body.newObject("PartDesign::LinearPattern", "LinearPattern001")
linearpattern2.Originals = [hole8]
linearpattern2.Direction = (doc.getObject("X_Axis"), [""])
linearpattern2.Mode = "offset"
linearpattern2.Offset = 15
linearpattern2.Occurrences = 2
linearpattern2.Reversed = True
body.Tip = linearpattern2

sketch20 = body.newObject("Sketcher::SketchObject", "Sketch019")
sketch20.AttachmentSupport = (doc.getObject("XY_Plane"), [""])
sketch20.MapMode = "FlatFace"
sketch20.AttachmentOffset = App.Placement(V(0, 0, 80), App.Rotation())
sketch20.addGeometry(Part.Circle(V(15, 19, 0), V(0, 0, 1), 1.7), False)
sketch20.addConstraint([
    Sketcher.Constraint("Diameter", 0, Q("3.4 mm")),
    Sketcher.Constraint("DistanceX", -1, 1, 0, 3, Q("15 mm")),
    Sketcher.Constraint("DistanceY", -1, 1, 0, 3, Q("19 mm")),
])
doc.recompute()
hole9 = body.newObject("PartDesign::Hole", "Hole008")
hole9.Profile = sketch20
hole9.ThreadType = "None"
hole9.Diameter = 3.4
hole9.DepthType = "Dimension"
hole9.Depth = 5
hole9.DrillPoint = "Flat"
doc.recompute()

linearpattern3 = body.newObject("PartDesign::LinearPattern", "LinearPattern002")
linearpattern3.Originals = [hole9]
linearpattern3.Direction = (doc.getObject("X_Axis"), [""])
linearpattern3.Mode = "offset"
linearpattern3.Offset = 15
linearpattern3.Occurrences = 2
linearpattern3.Reversed = True
body.Tip = linearpattern3
doc.recompute()

fillet = body.newObject("PartDesign::Fillet", "Fillet")
fillet.Base = (linearpattern3, edges_at(linearpattern3, [
    (-55, 16.25, -80),
    (-55, 16.25, 80),
    (47.678, 0, 72.678),
    (55, 0, 0),
    (47.678, 0, -72.678),
    (-12.5, 0, -80),
    (-12.5, 0, 80),
    (-55, 0, 0),
]))
fillet.Radius = 3

doc.recompute()
